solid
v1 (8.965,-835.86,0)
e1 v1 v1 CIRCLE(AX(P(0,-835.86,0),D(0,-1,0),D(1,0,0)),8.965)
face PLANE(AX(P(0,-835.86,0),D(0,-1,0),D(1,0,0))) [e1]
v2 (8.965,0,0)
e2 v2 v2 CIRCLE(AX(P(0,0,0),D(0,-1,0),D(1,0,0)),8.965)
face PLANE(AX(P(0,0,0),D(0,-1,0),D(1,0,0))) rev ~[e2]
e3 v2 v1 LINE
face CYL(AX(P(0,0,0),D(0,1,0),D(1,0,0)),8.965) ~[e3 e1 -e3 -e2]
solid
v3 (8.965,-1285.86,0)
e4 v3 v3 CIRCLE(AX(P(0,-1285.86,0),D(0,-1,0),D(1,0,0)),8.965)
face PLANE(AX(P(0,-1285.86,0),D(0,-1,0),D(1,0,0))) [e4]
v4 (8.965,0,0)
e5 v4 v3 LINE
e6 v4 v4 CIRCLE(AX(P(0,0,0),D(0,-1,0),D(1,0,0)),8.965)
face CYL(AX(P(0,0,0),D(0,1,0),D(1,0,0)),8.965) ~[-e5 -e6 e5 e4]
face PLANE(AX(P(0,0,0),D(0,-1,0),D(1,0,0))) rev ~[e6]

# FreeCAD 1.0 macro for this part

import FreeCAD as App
import Part
import Sketcher

V = App.Vector

doc = App.newDocument("Part")
body = doc.addObject("PartDesign::Body", "Body")

# Sketch on XZ plane
sketch1 = body.newObject("Sketcher::SketchObject", "Sketch")
sketch1.AttachmentSupport = (doc.getObject("XZ_Plane"), [""])
sketch1.MapMode = "FlatFace"
sketch1.addGeometry(Part.Circle(V(0, 0, 0), V(0, 0, 1), 8.965), False)
sketch1.addConstraint(Sketcher.Constraint("Coincident", 0, 3, -1, 1))
sketch1.addConstraint(Sketcher.Constraint("Diameter", 0, 17.93))
pad1 = body.newObject("PartDesign::Pad", "Pad")
pad1.Profile = sketch1
pad1.Length = 835.86
body2 = doc.addObject("PartDesign::Body", "Body001")

# Sketch on XZ plane
sketch2 = body2.newObject("Sketcher::SketchObject", "Sketch001")
sketch2.AttachmentSupport = (doc.getObject("XZ_Plane001"), [""])
sketch2.MapMode = "FlatFace"
sketch2.addGeometry(Part.Circle(V(0, 0, 0), V(0, 0, 1), 8.965), False)
sketch2.addConstraint(Sketcher.Constraint("Coincident", 0, 3, -1, 1))
sketch2.addConstraint(Sketcher.Constraint("Diameter", 0, 17.93))
pad2 = body2.newObject("PartDesign::Pad", "Pad001")
pad2.Profile = sketch2
pad2.Length = 1285.86

doc.recompute()
